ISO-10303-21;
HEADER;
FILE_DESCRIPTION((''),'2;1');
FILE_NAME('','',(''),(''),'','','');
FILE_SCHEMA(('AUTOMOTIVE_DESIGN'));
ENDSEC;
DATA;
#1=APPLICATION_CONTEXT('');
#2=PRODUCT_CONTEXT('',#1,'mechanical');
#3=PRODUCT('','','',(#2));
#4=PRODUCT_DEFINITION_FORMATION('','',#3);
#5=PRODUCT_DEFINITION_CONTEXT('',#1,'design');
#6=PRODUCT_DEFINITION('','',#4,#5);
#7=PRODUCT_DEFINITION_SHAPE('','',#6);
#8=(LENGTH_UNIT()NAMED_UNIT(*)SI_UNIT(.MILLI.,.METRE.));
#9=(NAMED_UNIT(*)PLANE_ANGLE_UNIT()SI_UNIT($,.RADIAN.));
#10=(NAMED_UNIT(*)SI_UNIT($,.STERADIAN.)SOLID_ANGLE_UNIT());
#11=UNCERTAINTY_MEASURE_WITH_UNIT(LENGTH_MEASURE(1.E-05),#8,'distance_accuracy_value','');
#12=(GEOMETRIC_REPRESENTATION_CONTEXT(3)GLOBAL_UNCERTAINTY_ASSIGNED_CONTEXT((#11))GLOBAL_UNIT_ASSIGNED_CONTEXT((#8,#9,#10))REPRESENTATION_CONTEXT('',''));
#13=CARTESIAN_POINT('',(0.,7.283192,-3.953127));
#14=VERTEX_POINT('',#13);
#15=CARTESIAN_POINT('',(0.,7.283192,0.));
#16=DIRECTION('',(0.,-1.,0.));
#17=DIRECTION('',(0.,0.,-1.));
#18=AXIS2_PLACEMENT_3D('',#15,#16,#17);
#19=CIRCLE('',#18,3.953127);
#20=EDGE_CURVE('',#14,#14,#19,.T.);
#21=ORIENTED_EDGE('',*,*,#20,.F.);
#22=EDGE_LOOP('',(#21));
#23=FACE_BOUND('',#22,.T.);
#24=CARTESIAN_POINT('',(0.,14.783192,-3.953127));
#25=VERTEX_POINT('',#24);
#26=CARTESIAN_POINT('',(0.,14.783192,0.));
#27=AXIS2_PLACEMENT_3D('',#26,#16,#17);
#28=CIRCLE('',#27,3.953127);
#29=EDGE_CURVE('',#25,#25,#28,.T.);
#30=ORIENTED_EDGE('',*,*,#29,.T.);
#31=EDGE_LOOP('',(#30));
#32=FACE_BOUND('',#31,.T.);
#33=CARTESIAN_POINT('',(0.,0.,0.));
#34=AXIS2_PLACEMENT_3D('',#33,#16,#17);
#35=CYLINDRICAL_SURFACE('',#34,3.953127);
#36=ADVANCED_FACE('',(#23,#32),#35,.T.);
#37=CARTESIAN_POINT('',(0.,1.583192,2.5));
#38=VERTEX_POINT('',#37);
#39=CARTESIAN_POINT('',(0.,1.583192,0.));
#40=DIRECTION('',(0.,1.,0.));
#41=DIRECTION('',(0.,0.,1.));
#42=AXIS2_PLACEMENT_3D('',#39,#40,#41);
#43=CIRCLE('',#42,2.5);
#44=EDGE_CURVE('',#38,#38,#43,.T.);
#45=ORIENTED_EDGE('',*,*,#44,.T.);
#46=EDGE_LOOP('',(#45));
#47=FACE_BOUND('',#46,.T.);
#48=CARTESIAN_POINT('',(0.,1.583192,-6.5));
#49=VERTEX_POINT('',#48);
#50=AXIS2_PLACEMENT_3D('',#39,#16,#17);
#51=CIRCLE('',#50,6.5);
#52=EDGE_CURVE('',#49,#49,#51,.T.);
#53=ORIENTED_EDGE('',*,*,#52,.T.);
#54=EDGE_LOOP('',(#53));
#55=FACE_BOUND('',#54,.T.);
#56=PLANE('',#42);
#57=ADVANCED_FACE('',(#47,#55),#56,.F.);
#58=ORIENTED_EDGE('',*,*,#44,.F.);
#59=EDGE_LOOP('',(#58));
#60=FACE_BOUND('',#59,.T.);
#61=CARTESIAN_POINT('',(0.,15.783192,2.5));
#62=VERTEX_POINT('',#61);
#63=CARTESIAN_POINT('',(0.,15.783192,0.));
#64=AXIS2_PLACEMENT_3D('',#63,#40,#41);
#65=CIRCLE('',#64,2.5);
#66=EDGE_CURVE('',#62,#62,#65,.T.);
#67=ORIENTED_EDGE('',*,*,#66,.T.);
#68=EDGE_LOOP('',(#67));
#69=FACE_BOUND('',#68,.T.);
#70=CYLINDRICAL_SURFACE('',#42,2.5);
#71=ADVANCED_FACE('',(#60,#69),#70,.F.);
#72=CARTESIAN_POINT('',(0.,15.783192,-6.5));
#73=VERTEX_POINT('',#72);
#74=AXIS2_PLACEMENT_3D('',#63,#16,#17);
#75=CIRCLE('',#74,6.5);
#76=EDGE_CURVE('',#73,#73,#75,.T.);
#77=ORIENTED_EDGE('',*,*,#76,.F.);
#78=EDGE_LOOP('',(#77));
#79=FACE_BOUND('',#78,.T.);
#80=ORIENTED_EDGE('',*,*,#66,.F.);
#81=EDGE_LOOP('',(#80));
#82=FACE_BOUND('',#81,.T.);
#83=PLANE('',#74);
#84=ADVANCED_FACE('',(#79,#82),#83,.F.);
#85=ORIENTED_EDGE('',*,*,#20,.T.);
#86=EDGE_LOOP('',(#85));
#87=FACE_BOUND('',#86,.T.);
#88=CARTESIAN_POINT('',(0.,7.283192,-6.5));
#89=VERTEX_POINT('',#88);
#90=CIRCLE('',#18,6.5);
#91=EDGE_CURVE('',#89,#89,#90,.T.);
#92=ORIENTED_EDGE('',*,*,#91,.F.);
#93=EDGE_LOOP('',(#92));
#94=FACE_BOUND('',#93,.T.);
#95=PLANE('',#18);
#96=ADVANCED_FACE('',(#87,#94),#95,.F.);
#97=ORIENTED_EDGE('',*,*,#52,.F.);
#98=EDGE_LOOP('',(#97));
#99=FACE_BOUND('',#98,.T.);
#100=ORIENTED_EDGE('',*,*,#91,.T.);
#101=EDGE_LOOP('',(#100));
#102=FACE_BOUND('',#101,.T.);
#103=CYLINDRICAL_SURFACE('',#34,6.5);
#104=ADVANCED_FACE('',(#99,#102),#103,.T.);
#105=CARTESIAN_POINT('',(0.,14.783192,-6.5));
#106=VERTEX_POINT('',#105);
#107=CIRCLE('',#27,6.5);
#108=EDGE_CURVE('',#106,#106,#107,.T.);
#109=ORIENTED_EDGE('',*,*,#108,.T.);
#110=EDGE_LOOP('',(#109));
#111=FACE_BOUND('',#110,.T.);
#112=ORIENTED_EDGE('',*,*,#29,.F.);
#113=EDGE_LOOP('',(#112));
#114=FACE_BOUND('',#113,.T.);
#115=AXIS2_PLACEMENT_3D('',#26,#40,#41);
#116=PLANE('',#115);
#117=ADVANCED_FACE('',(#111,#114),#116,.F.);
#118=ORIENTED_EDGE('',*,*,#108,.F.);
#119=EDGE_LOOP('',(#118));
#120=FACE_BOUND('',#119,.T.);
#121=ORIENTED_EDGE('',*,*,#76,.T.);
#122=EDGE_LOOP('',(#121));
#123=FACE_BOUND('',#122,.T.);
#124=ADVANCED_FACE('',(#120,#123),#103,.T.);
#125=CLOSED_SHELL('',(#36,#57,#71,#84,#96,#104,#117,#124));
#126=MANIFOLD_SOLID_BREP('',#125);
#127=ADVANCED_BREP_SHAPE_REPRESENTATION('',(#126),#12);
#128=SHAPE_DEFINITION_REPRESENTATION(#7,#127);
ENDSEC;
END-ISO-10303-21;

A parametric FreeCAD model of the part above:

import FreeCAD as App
import Part
import Sketcher

V = App.Vector

doc = App.newDocument("Part")
body = doc.addObject("PartDesign::Body", "Body")

# Sketch on XY plane
sketch1 = body.newObject("Sketcher::SketchObject", "Sketch")
sketch1.AttachmentSupport = (doc.getObject("XY_Plane"), [""])
sketch1.MapMode = "FlatFace"
sketch1.addGeometry([
    Part.LineSegment(V(-6.5, 1.583192, 0), V(0, 1.583192, 0)),  # 0
    Part.LineSegment(V(0, 1.583192, 0), V(0, 15.783192, 0)),  # 1
    Part.LineSegment(V(0, 15.783192, 0), V(-6.5, 15.783192, 0)),  # 2
    Part.LineSegment(V(-6.5, 15.783192, 0), V(-6.5, 14.783192, 0)),  # 3
    Part.LineSegment(V(-6.5, 14.783192, 0), V(-3.953127, 14.783192, 0)),  # 4
    Part.LineSegment(V(-3.953127, 14.783192, 0), V(-3.953127, 7.283192, 0)),  # 5
    Part.LineSegment(V(-3.953127, 7.283192, 0), V(-6.5, 7.283192, 0)),  # 6
    Part.LineSegment(V(-6.5, 7.283192, 0), V(-6.5, 1.583192, 0)),  # 7
], False)
sketch1.addConstraint([
    Sketcher.Constraint("Coincident", 0, 2, 1, 1),
    Sketcher.Constraint("Coincident", 1, 2, 2, 1),
    Sketcher.Constraint("Coincident", 2, 2, 3, 1),
    Sketcher.Constraint("Coincident", 3, 2, 4, 1),
    Sketcher.Constraint("Coincident", 4, 2, 5, 1),
    Sketcher.Constraint("Coincident", 5, 2, 6, 1),
    Sketcher.Constraint("Coincident", 6, 2, 7, 1),
    Sketcher.Constraint("Coincident", 7, 2, 0, 1),
    Sketcher.Constraint("Horizontal", 0),
    Sketcher.Constraint("Vertical", 1),
    Sketcher.Constraint("Horizontal", 2),
    Sketcher.Constraint("Vertical", 3),
    Sketcher.Constraint("Horizontal", 4),
    Sketcher.Constraint("Vertical", 5),
    Sketcher.Constraint("Horizontal", 6),
    Sketcher.Constraint("Vertical", 7),
    Sketcher.Constraint("PointOnObject", 0, 2, -2),
    Sketcher.Constraint("Vertical", 3, 2, 6, 2),
    Sketcher.Constraint("DistanceY", 3, 2, 3, 1, 1.0),
    Sketcher.Constraint("DistanceX", 0, 1, 0, 2, 6.5),
    Sketcher.Constraint("DistanceY", 1, 1, 1, 2, 14.2),
    Sketcher.Constraint("DistanceY", 5, 2, 5, 1, 7.5),
    Sketcher.Constraint("DistanceX", 4, 1, 4, 2, 2.546873),
    Sketcher.Constraint("DistanceY", -1, 1, 0, 2, 1.583192),
])
revolution = body.newObject("PartDesign::Revolution", "Revolution")
revolution.Profile = sketch1
revolution.ReferenceAxis = (sketch1, ["V_Axis"])
revolution.Angle = 360

# Sketch on XZ plane
sketch2 = body.newObject("Sketcher::SketchObject", "Sketch001")
sketch2.AttachmentSupport = (doc.getObject("XZ_Plane"), [""])
sketch2.MapMode = "FlatFace"
sketch2.AttachmentOffset = App.Placement(V(0, 0, -15.783192), App.Rotation())
sketch2.addGeometry(Part.Circle(V(0, 0, 0), V(0, 0, 1), 2.5), False)
sketch2.addConstraint([
    Sketcher.Constraint("Coincident", 0, 3, -1, 1),
    Sketcher.Constraint("Diameter", 0, 5.0),
])
pocket1 = body.newObject("PartDesign::Pocket", "Pocket")
pocket1.Profile = sketch2
pocket1.Type = "ThroughAll"
pocket1.Reversed = True

doc.recompute()
